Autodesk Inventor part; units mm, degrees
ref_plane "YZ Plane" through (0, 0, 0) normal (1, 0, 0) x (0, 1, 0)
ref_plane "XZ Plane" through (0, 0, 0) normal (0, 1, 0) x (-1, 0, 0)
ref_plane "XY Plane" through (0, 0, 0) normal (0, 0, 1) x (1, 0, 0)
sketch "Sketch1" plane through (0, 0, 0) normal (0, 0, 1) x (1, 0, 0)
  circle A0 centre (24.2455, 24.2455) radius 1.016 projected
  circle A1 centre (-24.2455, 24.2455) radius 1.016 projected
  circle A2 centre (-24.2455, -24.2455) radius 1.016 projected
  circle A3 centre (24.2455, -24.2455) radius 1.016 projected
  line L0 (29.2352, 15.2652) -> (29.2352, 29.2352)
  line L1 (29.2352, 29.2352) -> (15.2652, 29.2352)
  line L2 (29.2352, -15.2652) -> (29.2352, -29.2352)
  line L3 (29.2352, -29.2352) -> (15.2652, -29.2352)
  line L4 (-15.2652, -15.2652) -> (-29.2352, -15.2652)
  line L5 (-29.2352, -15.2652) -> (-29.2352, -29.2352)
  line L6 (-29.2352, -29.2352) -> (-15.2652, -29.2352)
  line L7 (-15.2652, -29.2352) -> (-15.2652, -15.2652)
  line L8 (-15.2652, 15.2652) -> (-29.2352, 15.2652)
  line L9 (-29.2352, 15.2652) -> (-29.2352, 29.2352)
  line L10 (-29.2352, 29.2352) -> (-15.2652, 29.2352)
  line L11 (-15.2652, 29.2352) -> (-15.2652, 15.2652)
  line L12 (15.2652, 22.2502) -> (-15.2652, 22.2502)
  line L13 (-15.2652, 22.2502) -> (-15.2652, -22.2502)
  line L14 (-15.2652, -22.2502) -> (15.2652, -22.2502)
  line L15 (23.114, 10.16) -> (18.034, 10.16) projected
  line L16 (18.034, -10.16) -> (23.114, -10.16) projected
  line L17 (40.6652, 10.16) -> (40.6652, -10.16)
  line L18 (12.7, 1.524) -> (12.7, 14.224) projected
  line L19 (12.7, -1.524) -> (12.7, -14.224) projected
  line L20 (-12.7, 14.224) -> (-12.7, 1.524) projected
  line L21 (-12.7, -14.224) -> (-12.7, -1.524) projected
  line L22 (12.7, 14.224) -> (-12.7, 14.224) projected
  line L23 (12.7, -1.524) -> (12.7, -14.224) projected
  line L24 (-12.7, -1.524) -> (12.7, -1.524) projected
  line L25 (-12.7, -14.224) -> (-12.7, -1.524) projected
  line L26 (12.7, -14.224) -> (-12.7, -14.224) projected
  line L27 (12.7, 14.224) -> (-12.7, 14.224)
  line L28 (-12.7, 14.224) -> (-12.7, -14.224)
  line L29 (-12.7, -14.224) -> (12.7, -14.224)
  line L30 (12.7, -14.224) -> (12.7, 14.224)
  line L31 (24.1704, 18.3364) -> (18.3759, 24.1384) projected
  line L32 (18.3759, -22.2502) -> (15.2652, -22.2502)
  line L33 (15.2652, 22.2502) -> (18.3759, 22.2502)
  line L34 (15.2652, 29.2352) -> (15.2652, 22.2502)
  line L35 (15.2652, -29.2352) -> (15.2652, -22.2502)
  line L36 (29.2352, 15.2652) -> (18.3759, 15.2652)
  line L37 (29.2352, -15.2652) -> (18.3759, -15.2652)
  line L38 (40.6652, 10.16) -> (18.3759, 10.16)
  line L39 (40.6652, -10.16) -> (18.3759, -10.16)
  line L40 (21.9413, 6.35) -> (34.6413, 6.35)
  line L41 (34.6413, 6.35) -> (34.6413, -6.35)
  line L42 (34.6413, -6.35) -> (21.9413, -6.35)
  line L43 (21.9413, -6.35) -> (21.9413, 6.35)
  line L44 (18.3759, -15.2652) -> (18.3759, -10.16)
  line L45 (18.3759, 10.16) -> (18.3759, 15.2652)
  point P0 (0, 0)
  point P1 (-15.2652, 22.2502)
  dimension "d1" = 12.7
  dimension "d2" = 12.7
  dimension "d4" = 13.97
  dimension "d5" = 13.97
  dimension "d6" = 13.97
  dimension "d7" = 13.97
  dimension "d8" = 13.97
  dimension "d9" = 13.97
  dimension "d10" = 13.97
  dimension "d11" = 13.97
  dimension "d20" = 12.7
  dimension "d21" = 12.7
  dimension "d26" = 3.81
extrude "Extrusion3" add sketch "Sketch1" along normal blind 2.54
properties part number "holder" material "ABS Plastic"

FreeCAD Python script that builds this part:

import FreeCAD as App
import Part
import Sketcher
Q = App.Units.Quantity

doc = App.newDocument("Part")
body = doc.addObject("PartDesign::Body", "Body")

sketch1 = doc.addObject("Sketcher::SketchObject", "Sketch")
body.addObject(sketch1)
sketch1.AttachmentSupport = (doc.XY_Plane, [""])
sketch1.MapMode = "FlatFace"
sketch1.addGeometry([
    Part.LineSegment(App.Vector(18.3759, 15.2652, 0), App.Vector(29.2352, 15.2652, 0)),
    Part.LineSegment(App.Vector(29.2352, 15.2652, 0), App.Vector(29.2352, 29.2352, 0)),
    Part.LineSegment(App.Vector(29.2352, 29.2352, 0), App.Vector(15.2652, 29.2352, 0)),
    Part.LineSegment(App.Vector(15.2652, 29.2352, 0), App.Vector(15.2652, 22.2502, 0)),
    Part.LineSegment(App.Vector(15.2652, 22.2502, 0), App.Vector(-15.2652, 22.2502, 0)),
    Part.LineSegment(App.Vector(-15.2652, 22.2502, 0), App.Vector(-15.2652, 29.2352, 0)),
    Part.LineSegment(App.Vector(-15.2652, 29.2352, 0), App.Vector(-29.2352, 29.2352, 0)),
    Part.LineSegment(App.Vector(-29.2352, 29.2352, 0), App.Vector(-29.2352, 15.2652, 0)),
    Part.LineSegment(App.Vector(-29.2352, 15.2652, 0), App.Vector(-15.2652, 15.2652, 0)),
    Part.LineSegment(App.Vector(-15.2652, 15.2652, 0), App.Vector(-15.2652, -15.2652, 0)),
    Part.LineSegment(App.Vector(-15.2652, -15.2652, 0), App.Vector(-29.2352, -15.2652, 0)),
    Part.LineSegment(App.Vector(-29.2352, -15.2652, 0), App.Vector(-29.2352, -29.2352, 0)),
    Part.LineSegment(App.Vector(-29.2352, -29.2352, 0), App.Vector(-15.2652, -29.2352, 0)),
    Part.LineSegment(App.Vector(-15.2652, -29.2352, 0), App.Vector(-15.2652, -22.2502, 0)),
    Part.LineSegment(App.Vector(-15.2652, -22.2502, 0), App.Vector(15.2652, -22.2502, 0)),
    Part.LineSegment(App.Vector(15.2652, -22.2502, 0), App.Vector(15.2652, -29.2352, 0)),
    Part.LineSegment(App.Vector(15.2652, -29.2352, 0), App.Vector(29.2352, -29.2352, 0)),
    Part.LineSegment(App.Vector(29.2352, -29.2352, 0), App.Vector(29.2352, -15.2652, 0)),
    Part.LineSegment(App.Vector(29.2352, -15.2652, 0), App.Vector(18.3759, -15.2652, 0)),
    Part.LineSegment(App.Vector(18.3759, -15.2652, 0), App.Vector(18.3759, -10.16, 0)),
    Part.LineSegment(App.Vector(18.3759, -10.16, 0), App.Vector(40.6652, -10.16, 0)),
    Part.LineSegment(App.Vector(40.6652, -10.16, 0), App.Vector(40.6652, 10.16, 0)),
    Part.LineSegment(App.Vector(40.6652, 10.16, 0), App.Vector(18.3759, 10.16, 0)),
    Part.LineSegment(App.Vector(18.3759, 10.16, 0), App.Vector(18.3759, 15.2652, 0)),
    Part.Circle(App.Vector(24.2455, -24.2455, 0), App.Vector(0, 0, 1), 1.016),
    Part.LineSegment(App.Vector(12.7, 14.224, 0), App.Vector(12.7, -14.224, 0)),
    Part.LineSegment(App.Vector(12.7, -14.224, 0), App.Vector(-12.7, -14.224, 0)),
    Part.LineSegment(App.Vector(-12.7, -14.224, 0), App.Vector(-12.7, 14.224, 0)),
    Part.LineSegment(App.Vector(-12.7, 14.224, 0), App.Vector(12.7, 14.224, 0)),
    Part.LineSegment(App.Vector(21.9413, -6.35, 0), App.Vector(21.9413, 6.35, 0)),
    Part.LineSegment(App.Vector(21.9413, 6.35, 0), App.Vector(34.6413, 6.35, 0)),
    Part.LineSegment(App.Vector(34.6413, 6.35, 0), App.Vector(34.6413, -6.35, 0)),
    Part.LineSegment(App.Vector(34.6413, -6.35, 0), App.Vector(21.9413, -6.35, 0)),
    Part.Circle(App.Vector(24.2455, 24.2455, 0), App.Vector(0, 0, 1), 1.016),
    Part.Circle(App.Vector(-24.2455, -24.2455, 0), App.Vector(0, 0, 1), 1.016),
    Part.Circle(App.Vector(-24.2455, 24.2455, 0), App.Vector(0, 0, 1), 1.016),
], False)
sketch1.addConstraint([
    Sketcher.Constraint("Coincident", 0, 2, 1, 1),
    Sketcher.Constraint("Coincident", 1, 2, 2, 1),
    Sketcher.Constraint("Coincident", 2, 2, 3, 1),
    Sketcher.Constraint("Coincident", 3, 2, 4, 1),
    Sketcher.Constraint("Coincident", 4, 2, 5, 1),
    Sketcher.Constraint("Coincident", 5, 2, 6, 1),
    Sketcher.Constraint("Coincident", 6, 2, 7, 1),
    Sketcher.Constraint("Coincident", 7, 2, 8, 1),
    Sketcher.Constraint("Coincident", 8, 2, 9, 1),
    Sketcher.Constraint("Coincident", 9, 2, 10, 1),
    Sketcher.Constraint("Coincident", 10, 2, 11, 1),
    Sketcher.Constraint("Coincident", 11, 2, 12, 1),
    Sketcher.Constraint("Coincident", 12, 2, 13, 1),
    Sketcher.Constraint("Coincident", 13, 2, 14, 1),
    Sketcher.Constraint("Coincident", 14, 2, 15, 1),
    Sketcher.Constraint("Coincident", 15, 2, 16, 1),
    Sketcher.Constraint("Coincident", 16, 2, 17, 1),
    Sketcher.Constraint("Coincident", 17, 2, 18, 1),
    Sketcher.Constraint("Coincident", 18, 2, 19, 1),
    Sketcher.Constraint("Coincident", 19, 2, 20, 1),
    Sketcher.Constraint("Coincident", 20, 2, 21, 1),
    Sketcher.Constraint("Coincident", 21, 2, 22, 1),
    Sketcher.Constraint("Coincident", 22, 2, 23, 1),
    Sketcher.Constraint("Coincident", 23, 2, 0, 1),
    Sketcher.Constraint("Coincident", 25, 2, 26, 1),
    Sketcher.Constraint("Coincident", 26, 2, 27, 1),
    Sketcher.Constraint("Coincident", 27, 2, 28, 1),
    Sketcher.Constraint("Coincident", 28, 2, 25, 1),
    Sketcher.Constraint("Coincident", 29, 2, 30, 1),
    Sketcher.Constraint("Coincident", 30, 2, 31, 1),
    Sketcher.Constraint("Coincident", 31, 2, 32, 1),
    Sketcher.Constraint("Coincident", 32, 2, 29, 1),
    Sketcher.Constraint("Horizontal", 0),
    Sketcher.Constraint("Vertical", 1),
    Sketcher.Constraint("Horizontal", 2),
    Sketcher.Constraint("Vertical", 3),
    Sketcher.Constraint("Horizontal", 4),
    Sketcher.Constraint("Vertical", 5),
    Sketcher.Constraint("Horizontal", 6),
    Sketcher.Constraint("Vertical", 7),
    Sketcher.Constraint("Horizontal", 8),
    Sketcher.Constraint("Vertical", 9),
    Sketcher.Constraint("Horizontal", 10),
    Sketcher.Constraint("Vertical", 11),
    Sketcher.Constraint("Horizontal", 12),
    Sketcher.Constraint("Vertical", 13),
    Sketcher.Constraint("Horizontal", 14),
    Sketcher.Constraint("Vertical", 15),
    Sketcher.Constraint("Horizontal", 16),
    Sketcher.Constraint("Vertical", 17),
    Sketcher.Constraint("Horizontal", 18),
    Sketcher.Constraint("Vertical", 19),
    Sketcher.Constraint("Horizontal", 20),
    Sketcher.Constraint("Vertical", 21),
    Sketcher.Constraint("Horizontal", 22),
    Sketcher.Constraint("Vertical", 23),
    Sketcher.Constraint("Vertical", 25),
    Sketcher.Constraint("Horizontal", 26),
    Sketcher.Constraint("Vertical", 27),
    Sketcher.Constraint("Horizontal", 28),
    Sketcher.Constraint("Vertical", 29),
    Sketcher.Constraint("Horizontal", 30),
    Sketcher.Constraint("Vertical", 31),
    Sketcher.Constraint("Horizontal", 32),
    Sketcher.Constraint("Equal", 24, 33),
    Sketcher.Constraint("Equal", 33, 34),
    Sketcher.Constraint("Equal", 34, 35),
    Sketcher.Constraint("Symmetric", 33, 3, 34, 3, -1, 1),
    Sketcher.Constraint("Symmetric", 24, 3, 35, 3, -1, 1),
    Sketcher.Constraint("Symmetric", 0, 2, 10, 2, -1, 1),
    Sketcher.Constraint("Symmetric", 2, 2, 12, 2, -1, 1),
    Sketcher.Constraint("Symmetric", 4, 2, 14, 2, -1, 1),
    Sketcher.Constraint("Symmetric", 6, 2, 16, 2, -1, 1),
    Sketcher.Constraint("Symmetric", 25, 2, 27, 2, -1, 1),
    Sketcher.Constraint("Symmetric", 24, 3, 34, 3, -2),
    Sketcher.Constraint("Symmetric", 2, 2, 5, 2, -2),
    Sketcher.Constraint("Symmetric", 0, 2, 7, 2, -2),
    Sketcher.Constraint("Symmetric", 19, 2, 22, 2, -1),
    Sketcher.Constraint("Horizontal", 10, 2, 17, 2),
    Sketcher.Constraint("Vertical", 5, 2, 8, 2),
    Sketcher.Constraint("Equal", 16, 1),
    Sketcher.Constraint("Equal", 14, 9),
    Sketcher.Constraint("Equal", 32, 29),
    Sketcher.Constraint("DistanceX", 30, 1, 30, 2, Q("0.5 in")),
    Sketcher.Constraint("DistanceX", 2, 2, 2, 1, Q("0.55 in")),
    Sketcher.Constraint("DistanceX", -1, 1, 25, 2, Q("0.5 in")),
    Sketcher.Constraint("Diameter", 24, Q("0.08 in")),
    Sketcher.Constraint("DistanceY", 29, 2, 22, 2, Q("0.15 in")),
    Sketcher.Constraint("DistanceY", 20, 2, 31, 2, Q("0.15 in")),
    Sketcher.Constraint("DistanceY", 25, 2, 25, 1, Q("1.12 in")),
    Sketcher.Constraint("DistanceY", 3, 2, 3, 1, Q("0.275 in")),
    Sketcher.Constraint("DistanceY", 19, 1, 19, 2, Q("0.201 in")),
    Sketcher.Constraint("DistanceX", 17, 2, 20, 2, Q("0.45 in")),
    Sketcher.Constraint("DistanceX", 0, 1, 0, 2, 10.8593),
    Sketcher.Constraint("DistanceY", 24, 3, 33, 3, Q("1.9091 in")),
    Sketcher.Constraint("DistanceX", 34, 3, 24, 3, Q("1.9091 in")),
    Sketcher.Constraint("DistanceX", -1, 1, 29, 2, 21.9413),
])
pad1 = doc.addObject("PartDesign::Pad", "Pad")
body.addObject(pad1)
pad1.Profile = sketch1
pad1.Length = Q("0.1 in")

doc.recompute()
